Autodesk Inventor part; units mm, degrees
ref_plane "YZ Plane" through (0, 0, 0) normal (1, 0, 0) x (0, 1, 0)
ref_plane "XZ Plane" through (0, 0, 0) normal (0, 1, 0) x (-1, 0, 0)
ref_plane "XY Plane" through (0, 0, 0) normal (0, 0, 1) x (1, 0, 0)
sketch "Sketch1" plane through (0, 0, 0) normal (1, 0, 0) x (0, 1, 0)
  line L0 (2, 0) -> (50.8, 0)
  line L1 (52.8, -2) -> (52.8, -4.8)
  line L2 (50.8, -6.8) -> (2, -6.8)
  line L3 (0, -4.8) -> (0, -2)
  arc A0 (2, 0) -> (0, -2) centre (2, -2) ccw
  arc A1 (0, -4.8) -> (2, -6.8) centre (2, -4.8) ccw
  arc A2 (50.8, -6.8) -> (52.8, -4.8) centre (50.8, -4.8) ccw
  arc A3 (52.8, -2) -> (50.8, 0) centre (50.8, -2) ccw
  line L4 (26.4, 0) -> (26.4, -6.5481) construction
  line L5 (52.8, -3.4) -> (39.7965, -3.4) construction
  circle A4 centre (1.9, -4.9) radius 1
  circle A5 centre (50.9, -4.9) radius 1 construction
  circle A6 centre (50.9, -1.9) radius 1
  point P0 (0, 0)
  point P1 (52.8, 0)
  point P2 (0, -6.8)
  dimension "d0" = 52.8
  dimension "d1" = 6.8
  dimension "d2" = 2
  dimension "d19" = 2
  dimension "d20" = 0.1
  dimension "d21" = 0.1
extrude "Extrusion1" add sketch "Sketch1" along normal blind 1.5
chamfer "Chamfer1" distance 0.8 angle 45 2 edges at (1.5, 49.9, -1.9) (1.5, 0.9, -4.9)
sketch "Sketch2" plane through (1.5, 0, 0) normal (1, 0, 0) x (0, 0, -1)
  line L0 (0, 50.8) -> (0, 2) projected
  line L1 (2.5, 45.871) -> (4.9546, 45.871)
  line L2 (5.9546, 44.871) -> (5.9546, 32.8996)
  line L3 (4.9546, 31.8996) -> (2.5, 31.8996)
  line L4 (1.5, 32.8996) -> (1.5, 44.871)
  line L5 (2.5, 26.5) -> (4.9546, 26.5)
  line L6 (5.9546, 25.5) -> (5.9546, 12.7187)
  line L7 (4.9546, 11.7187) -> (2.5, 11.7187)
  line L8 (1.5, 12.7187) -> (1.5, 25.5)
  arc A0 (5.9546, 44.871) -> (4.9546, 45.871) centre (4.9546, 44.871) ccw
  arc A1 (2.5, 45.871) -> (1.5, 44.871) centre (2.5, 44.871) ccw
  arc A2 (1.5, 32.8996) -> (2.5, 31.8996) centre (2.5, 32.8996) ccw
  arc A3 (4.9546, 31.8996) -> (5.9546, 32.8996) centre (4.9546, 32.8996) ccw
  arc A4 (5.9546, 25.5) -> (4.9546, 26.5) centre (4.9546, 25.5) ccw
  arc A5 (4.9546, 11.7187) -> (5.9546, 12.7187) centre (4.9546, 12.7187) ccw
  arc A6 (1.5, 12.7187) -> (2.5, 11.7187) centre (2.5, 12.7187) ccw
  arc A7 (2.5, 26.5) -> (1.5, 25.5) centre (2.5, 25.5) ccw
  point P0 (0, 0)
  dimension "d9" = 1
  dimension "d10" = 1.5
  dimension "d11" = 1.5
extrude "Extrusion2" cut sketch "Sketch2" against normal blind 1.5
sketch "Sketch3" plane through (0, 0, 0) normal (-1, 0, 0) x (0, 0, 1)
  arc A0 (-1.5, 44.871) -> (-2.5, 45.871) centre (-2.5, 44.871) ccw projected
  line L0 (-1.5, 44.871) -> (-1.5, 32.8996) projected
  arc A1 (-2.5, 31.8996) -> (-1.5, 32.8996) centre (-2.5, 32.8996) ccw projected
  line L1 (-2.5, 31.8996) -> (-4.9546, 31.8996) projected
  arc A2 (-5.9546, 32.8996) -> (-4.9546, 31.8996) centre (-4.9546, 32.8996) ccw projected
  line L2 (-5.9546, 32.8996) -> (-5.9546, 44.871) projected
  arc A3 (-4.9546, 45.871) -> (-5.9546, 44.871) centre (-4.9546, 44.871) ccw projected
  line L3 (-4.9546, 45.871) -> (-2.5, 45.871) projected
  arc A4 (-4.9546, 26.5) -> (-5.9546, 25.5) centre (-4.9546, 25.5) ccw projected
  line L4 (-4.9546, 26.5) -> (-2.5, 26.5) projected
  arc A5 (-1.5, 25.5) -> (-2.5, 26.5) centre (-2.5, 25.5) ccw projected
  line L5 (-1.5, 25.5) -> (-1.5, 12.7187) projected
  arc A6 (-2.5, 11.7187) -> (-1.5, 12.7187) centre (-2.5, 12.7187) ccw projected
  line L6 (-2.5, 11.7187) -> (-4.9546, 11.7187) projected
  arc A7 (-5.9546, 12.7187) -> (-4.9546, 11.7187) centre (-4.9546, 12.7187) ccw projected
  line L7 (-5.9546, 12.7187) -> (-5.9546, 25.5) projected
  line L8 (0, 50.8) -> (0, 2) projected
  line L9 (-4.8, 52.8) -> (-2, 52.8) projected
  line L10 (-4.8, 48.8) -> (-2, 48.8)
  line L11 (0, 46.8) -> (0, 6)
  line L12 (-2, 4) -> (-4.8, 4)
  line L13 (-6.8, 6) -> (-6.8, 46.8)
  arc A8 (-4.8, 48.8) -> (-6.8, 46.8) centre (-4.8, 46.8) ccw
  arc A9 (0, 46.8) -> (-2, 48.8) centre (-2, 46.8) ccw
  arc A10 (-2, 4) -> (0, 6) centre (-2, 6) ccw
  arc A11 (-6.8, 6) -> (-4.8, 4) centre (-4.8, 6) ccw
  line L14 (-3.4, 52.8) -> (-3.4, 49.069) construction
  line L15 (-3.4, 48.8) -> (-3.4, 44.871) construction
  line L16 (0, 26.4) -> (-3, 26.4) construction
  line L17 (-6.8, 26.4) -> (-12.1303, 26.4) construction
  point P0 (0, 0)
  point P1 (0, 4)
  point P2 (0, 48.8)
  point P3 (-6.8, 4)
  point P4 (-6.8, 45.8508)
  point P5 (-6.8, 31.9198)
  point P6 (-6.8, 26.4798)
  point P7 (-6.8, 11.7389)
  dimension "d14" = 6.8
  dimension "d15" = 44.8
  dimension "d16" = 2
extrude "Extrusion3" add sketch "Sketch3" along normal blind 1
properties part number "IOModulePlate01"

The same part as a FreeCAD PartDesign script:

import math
import FreeCAD as App
import Part
import Sketcher
from FreeCAD import Vector


def edges_at(feature, points):
    """Names of the edges that pass closest to the given points."""
    edges = feature.Shape.Edges
    near = lambda p: min(range(len(edges)), key=lambda i: edges[i].distToShape(Part.Vertex(*p))[0])
    return sorted({f"Edge{near(p) + 1}" for p in points})

doc = App.newDocument("Part")
body = doc.addObject("PartDesign::Body", "Body")

# Sketch on YZ plane
sketch1 = doc.addObject("Sketcher::SketchObject", "Sketch")
body.addObject(sketch1)
sketch1.AttachmentSupport = (doc.YZ_Plane, [""])
sketch1.MapMode = "FlatFace"
sketch1.addGeometry(Part.LineSegment(Vector(50.8, 0, 0), Vector(2, 0, 0)), False)
sketch1.addGeometry(Part.ArcOfCircle(Part.Circle(Vector(2, -2, 0), Vector(0, 0, 1), 2), math.radians(90), math.radians(180)), False)
sketch1.addGeometry(Part.LineSegment(Vector(0, -2, 0), Vector(0, -4.8, 0)), False)
sketch1.addGeometry(Part.ArcOfCircle(Part.Circle(Vector(2, -4.8, 0), Vector(0, 0, 1), 2), math.radians(180), math.radians(270)), False)
sketch1.addGeometry(Part.LineSegment(Vector(2, -6.8, 0), Vector(50.8, -6.8, 0)), False)
sketch1.addGeometry(Part.ArcOfCircle(Part.Circle(Vector(50.8, -4.8, 0), Vector(0, 0, 1), 2), math.radians(-90), math.radians(0)), False)
sketch1.addGeometry(Part.LineSegment(Vector(52.8, -4.8, 0), Vector(52.8, -2, 0)), False)
sketch1.addGeometry(Part.ArcOfCircle(Part.Circle(Vector(50.8, -2, 0), Vector(0, 0, 1), 2), math.radians(0), math.radians(90)), False)
sketch1.addGeometry(Part.Circle(Vector(1.9, -4.9, 0), Vector(0, 0, 1), 1), False)
sketch1.addGeometry(Part.Circle(Vector(50.9, -1.9, 0), Vector(0, 0, 1), 1), False)
sketch1.addConstraint(Sketcher.Constraint("Tangent", 0, 2, 1, 1))
sketch1.addConstraint(Sketcher.Constraint("Tangent", 1, 2, 2, 1))
sketch1.addConstraint(Sketcher.Constraint("Tangent", 2, 2, 3, 1))
sketch1.addConstraint(Sketcher.Constraint("Tangent", 3, 2, 4, 1))
sketch1.addConstraint(Sketcher.Constraint("Tangent", 4, 2, 5, 1))
sketch1.addConstraint(Sketcher.Constraint("Tangent", 5, 2, 6, 1))
sketch1.addConstraint(Sketcher.Constraint("Tangent", 6, 2, 7, 1))
sketch1.addConstraint(Sketcher.Constraint("Tangent", 7, 2, 0, 1))
sketch1.addConstraint(Sketcher.Constraint("Horizontal", 0))
sketch1.addConstraint(Sketcher.Constraint("Vertical", 2))
sketch1.addConstraint(Sketcher.Constraint("Horizontal", 4))
sketch1.addConstraint(Sketcher.Constraint("Vertical", 6))
sketch1.addConstraint(Sketcher.Constraint("Equal", 1, 3))
sketch1.addConstraint(Sketcher.Constraint("Equal", 3, 5))
sketch1.addConstraint(Sketcher.Constraint("Equal", 5, 7))
sketch1.addConstraint(Sketcher.Constraint("Equal", 8, 9))
sketch1.addConstraint(Sketcher.Constraint("PointOnObject", 0, 2, -1))
sketch1.addConstraint(Sketcher.Constraint("PointOnObject", 1, 2, -2))
sketch1.addConstraint(Sketcher.Constraint("Diameter", 8, 2.0))
sketch1.addConstraint(Sketcher.Constraint("Radius", 1, 2.0))
sketch1.addConstraint(Sketcher.Constraint("DistanceY", 3, 2, -1, 1, 6.8))
sketch1.addConstraint(Sketcher.Constraint("DistanceX", -1, 1, 5, 2, 52.8))
sketch1.addConstraint(Sketcher.Constraint("DistanceX", 8, 3, 3, 3, 0.1))
sketch1.addConstraint(Sketcher.Constraint("DistanceY", 8, 3, 3, 3, 0.1))
sketch1.addConstraint(Sketcher.Constraint("DistanceX", 7, 3, 9, 3, 0.1))
sketch1.addConstraint(Sketcher.Constraint("DistanceY", 7, 3, 9, 3, 0.1))
pad1 = doc.addObject("PartDesign::Pad", "Pad")
body.addObject(pad1)
pad1.Profile = sketch1
pad1.Length = 1.5
doc.recompute()

chamfer = doc.addObject("PartDesign::Chamfer", "Chamfer")
body.addObject(chamfer)
chamfer.Base = (pad1, edges_at(pad1, [(1.5, 49.9, -1.9), (1.5, 0.9, -4.9)]))
chamfer.Size = 0.8

# Sketch on YZ plane
sketch2 = doc.addObject("Sketcher::SketchObject", "Sketch001")
body.addObject(sketch2)
sketch2.AttachmentSupport = (doc.YZ_Plane, [""])
sketch2.MapMode = "FlatFace"
sketch2.AttachmentOffset = App.Placement(Vector(0, 0, 1.5), App.Rotation())
sketch2.addGeometry(Part.LineSegment(Vector(45.9, -5, 0), Vector(45.9, -2.5, 0)), False)
sketch2.addGeometry(Part.ArcOfCircle(Part.Circle(Vector(44.9, -2.5, 0), Vector(0, 0, 1), 1), math.radians(0), math.radians(90)), False)
sketch2.addGeometry(Part.LineSegment(Vector(44.9, -1.5, 0), Vector(32.9, -1.5, 0)), False)
sketch2.addGeometry(Part.ArcOfCircle(Part.Circle(Vector(32.9, -2.5, 0), Vector(0, 0, 1), 1), math.radians(90), math.radians(180)), False)
sketch2.addGeometry(Part.LineSegment(Vector(31.9, -2.5, 0), Vector(31.9, -5, 0)), False)
sketch2.addGeometry(Part.ArcOfCircle(Part.Circle(Vector(32.9, -5, 0), Vector(0, 0, 1), 1), math.radians(180), math.radians(270)), False)
sketch2.addGeometry(Part.LineSegment(Vector(32.9, -6, 0), Vector(44.9, -6, 0)), False)
sketch2.addGeometry(Part.ArcOfCircle(Part.Circle(Vector(44.9, -5, 0), Vector(0, 0, 1), 1), math.radians(-90), math.radians(0)), False)
sketch2.addGeometry(Part.LineSegment(Vector(26.5, -5, 0), Vector(26.5, -2.5, 0)), False)
sketch2.addGeometry(Part.ArcOfCircle(Part.Circle(Vector(25.5, -2.5, 0), Vector(0, 0, 1), 1), math.radians(0), math.radians(90)), False)
sketch2.addGeometry(Part.LineSegment(Vector(25.5, -1.5, 0), Vector(12.7, -1.5, 0)), False)
sketch2.addGeometry(Part.ArcOfCircle(Part.Circle(Vector(12.7, -2.5, 0), Vector(0, 0, 1), 1), math.radians(90), math.radians(180)), False)
sketch2.addGeometry(Part.LineSegment(Vector(11.7, -2.5, 0), Vector(11.7, -5, 0)), False)
sketch2.addGeometry(Part.ArcOfCircle(Part.Circle(Vector(12.7, -5, 0), Vector(0, 0, 1), 1), math.radians(180), math.radians(270)), False)
sketch2.addGeometry(Part.LineSegment(Vector(12.7, -6, 0), Vector(25.5, -6, 0)), False)
sketch2.addGeometry(Part.ArcOfCircle(Part.Circle(Vector(25.5, -5, 0), Vector(0, 0, 1), 1), math.radians(-90), math.radians(0)), False)
sketch2.addConstraint(Sketcher.Constraint("Tangent", 0, 2, 1, 1))
sketch2.addConstraint(Sketcher.Constraint("Tangent", 1, 2, 2, 1))
sketch2.addConstraint(Sketcher.Constraint("Tangent", 2, 2, 3, 1))
sketch2.addConstraint(Sketcher.Constraint("Tangent", 3, 2, 4, 1))
sketch2.addConstraint(Sketcher.Constraint("Tangent", 4, 2, 5, 1))
sketch2.addConstraint(Sketcher.Constraint("Tangent", 5, 2, 6, 1))
sketch2.addConstraint(Sketcher.Constraint("Tangent", 6, 2, 7, 1))
sketch2.addConstraint(Sketcher.Constraint("Tangent", 7, 2, 0, 1))
sketch2.addConstraint(Sketcher.Constraint("Tangent", 8, 2, 9, 1))
sketch2.addConstraint(Sketcher.Constraint("Tangent", 9, 2, 10, 1))
sketch2.addConstraint(Sketcher.Constraint("Tangent", 10, 2, 11, 1))
sketch2.addConstraint(Sketcher.Constraint("Tangent", 11, 2, 12, 1))
sketch2.addConstraint(Sketcher.Constraint("Tangent", 12, 2, 13, 1))
sketch2.addConstraint(Sketcher.Constraint("Tangent", 13, 2, 14, 1))
sketch2.addConstraint(Sketcher.Constraint("Tangent", 14, 2, 15, 1))
sketch2.addConstraint(Sketcher.Constraint("Tangent", 15, 2, 8, 1))
sketch2.addConstraint(Sketcher.Constraint("Vertical", 0))
sketch2.addConstraint(Sketcher.Constraint("Horizontal", 2))
sketch2.addConstraint(Sketcher.Constraint("Vertical", 4))
sketch2.addConstraint(Sketcher.Constraint("Horizontal", 6))
sketch2.addConstraint(Sketcher.Constraint("Vertical", 8))
sketch2.addConstraint(Sketcher.Constraint("Horizontal", 10))
sketch2.addConstraint(Sketcher.Constraint("Vertical", 12))
sketch2.addConstraint(Sketcher.Constraint("Horizontal", 14))
sketch2.addConstraint(Sketcher.Constraint("Equal", 1, 3))
sketch2.addConstraint(Sketcher.Constraint("Equal", 3, 5))
sketch2.addConstraint(Sketcher.Constraint("Equal", 5, 7))
sketch2.addConstraint(Sketcher.Constraint("Equal", 7, 9))
sketch2.addConstraint(Sketcher.Constraint("Equal", 9, 11))
sketch2.addConstraint(Sketcher.Constraint("Equal", 11, 13))
sketch2.addConstraint(Sketcher.Constraint("Equal", 13, 15))
sketch2.addConstraint(Sketcher.Constraint("Horizontal", 3, 3, 9, 3))
sketch2.addConstraint(Sketcher.Constraint("Horizontal", 7, 3, 13, 3))
sketch2.addConstraint(Sketcher.Constraint("Radius", 1, 1.0))
sketch2.addConstraint(Sketcher.Constraint("DistanceY", 1, 2, -1, 1, 1.5))
sketch2.addConstraint(Sketcher.Constraint("DistanceX", -1, 1, 9, 3, 25.5))
sketch2.addConstraint(Sketcher.Constraint("DistanceX", 2, 2, 2, 1, 11.9714))
sketch2.addConstraint(Sketcher.Constraint("DistanceX", 10, 2, 10, 1, 12.7813))
sketch2.addConstraint(Sketcher.Constraint("DistanceY", 0, 1, 0, 2, 2.4546))
sketch2.addConstraint(Sketcher.Constraint("DistanceX", -1, 1, 1, 3, 44.871))
pocket1 = doc.addObject("PartDesign::Pocket", "Pocket")
body.addObject(pocket1)
pocket1.Profile = sketch2
pocket1.Length = 1.5

# Sketch on YZ plane
sketch3 = doc.addObject("Sketcher::SketchObject", "Sketch002")
body.addObject(sketch3)
sketch3.AttachmentSupport = (doc.YZ_Plane, [""])
sketch3.MapMode = "FlatFace"
sketch3.addGeometry(Part.LineSegment(Vector(6, 0, 0), Vector(46.8, 0, 0)), False)
sketch3.addGeometry(Part.ArcOfCircle(Part.Circle(Vector(46.8, -2, 0), Vector(0, 0, 1), 2), math.radians(0), math.radians(90)), False)
sketch3.addGeometry(Part.LineSegment(Vector(48.8, -2, 0), Vector(48.8, -4.8, 0)), False)
sketch3.addGeometry(Part.ArcOfCircle(Part.Circle(Vector(46.8, -4.8, 0), Vector(0, 0, 1), 2), math.radians(-90), math.radians(0)), False)
sketch3.addGeometry(Part.LineSegment(Vector(46.8, -6.8, 0), Vector(6, -6.8, 0)), False)
sketch3.addGeometry(Part.ArcOfCircle(Part.Circle(Vector(6, -4.8, 0), Vector(0, 0, 1), 2), math.radians(180), math.radians(270)), False)
sketch3.addGeometry(Part.LineSegment(Vector(4, -4.8, 0), Vector(4, -2, 0)), False)
sketch3.addGeometry(Part.ArcOfCircle(Part.Circle(Vector(6, -2, 0), Vector(0, 0, 1), 2), math.radians(90), math.radians(180)), False)
sketch3.addGeometry(Part.ArcOfCircle(Part.Circle(Vector(25.5, -5, 0), Vector(0, 0, 1), 1), math.radians(-90), math.radians(0)), False)
sketch3.addGeometry(Part.LineSegment(Vector(26.5, -5, 0), Vector(26.5, -2.5, 0)), False)
sketch3.addGeometry(Part.ArcOfCircle(Part.Circle(Vector(25.5, -2.5, 0), Vector(0, 0, 1), 1), math.radians(0), math.radians(90)), False)
sketch3.addGeometry(Part.LineSegment(Vector(25.5, -1.5, 0), Vector(12.7, -1.5, 0)), False)
sketch3.addGeometry(Part.ArcOfCircle(Part.Circle(Vector(12.7, -2.5, 0), Vector(0, 0, 1), 1), math.radians(90), math.radians(180)), False)
sketch3.addGeometry(Part.LineSegment(Vector(11.7, -2.5, 0), Vector(11.7, -5, 0)), False)
sketch3.addGeometry(Part.ArcOfCircle(Part.Circle(Vector(12.7, -5, 0), Vector(0, 0, 1), 1), math.radians(180), math.radians(270)), False)
sketch3.addGeometry(Part.LineSegment(Vector(12.7, -6, 0), Vector(25.5, -6, 0)), False)
sketch3.addGeometry(Part.ArcOfCircle(Part.Circle(Vector(44.9, -2.5, 0), Vector(0, 0, 1), 1), math.radians(0), math.radians(90)), False)
sketch3.addGeometry(Part.LineSegment(Vector(44.9, -1.5, 0), Vector(32.9, -1.5, 0)), False)
sketch3.addGeometry(Part.ArcOfCircle(Part.Circle(Vector(32.9, -2.5, 0), Vector(0, 0, 1), 1), math.radians(90), math.radians(180)), False)
sketch3.addGeometry(Part.LineSegment(Vector(31.9, -2.5, 0), Vector(31.9, -5, 0)), False)
sketch3.addGeometry(Part.ArcOfCircle(Part.Circle(Vector(32.9, -5, 0), Vector(0, 0, 1), 1), math.radians(180), math.radians(270)), False)
sketch3.addGeometry(Part.LineSegment(Vector(32.9, -6, 0), Vector(44.9, -6, 0)), False)
sketch3.addGeometry(Part.ArcOfCircle(Part.Circle(Vector(44.9, -5, 0), Vector(0, 0, 1), 1), math.radians(-90), math.radians(0)), False)
sketch3.addGeometry(Part.LineSegment(Vector(45.9, -5, 0), Vector(45.9, -2.5, 0)), False)
sketch3.addConstraint(Sketcher.Constraint("Tangent", 0, 2, 1, 2))
sketch3.addConstraint(Sketcher.Constraint("Tangent", 1, 1, 2, 1))
sketch3.addConstraint(Sketcher.Constraint("Tangent", 2, 2, 3, 2))
sketch3.addConstraint(Sketcher.Constraint("Tangent", 3, 1, 4, 1))
sketch3.addConstraint(Sketcher.Constraint("Tangent", 4, 2, 5, 2))
sketch3.addConstraint(Sketcher.Constraint("Tangent", 5, 1, 6, 1))
sketch3.addConstraint(Sketcher.Constraint("Tangent", 6, 2, 7, 2))
sketch3.addConstraint(Sketcher.Constraint("Tangent", 7, 1, 0, 1))
sketch3.addConstraint(Sketcher.Constraint("Tangent", 8, 2, 9, 1))
sketch3.addConstraint(Sketcher.Constraint("Tangent", 9, 2, 10, 1))
sketch3.addConstraint(Sketcher.Constraint("Tangent", 10, 2, 11, 1))
sketch3.addConstraint(Sketcher.Constraint("Tangent", 11, 2, 12, 1))
sketch3.addConstraint(Sketcher.Constraint("Tangent", 12, 2, 13, 1))
sketch3.addConstraint(Sketcher.Constraint("Tangent", 13, 2, 14, 1))
sketch3.addConstraint(Sketcher.Constraint("Tangent", 14, 2, 15, 1))
sketch3.addConstraint(Sketcher.Constraint("Tangent", 15, 2, 8, 1))
sketch3.addConstraint(Sketcher.Constraint("Tangent", 16, 2, 17, 1))
sketch3.addConstraint(Sketcher.Constraint("Tangent", 17, 2, 18, 1))
sketch3.addConstraint(Sketcher.Constraint("Tangent", 18, 2, 19, 1))
sketch3.addConstraint(Sketcher.Constraint("Tangent", 19, 2, 20, 1))
sketch3.addConstraint(Sketcher.Constraint("Tangent", 20, 2, 21, 1))
sketch3.addConstraint(Sketcher.Constraint("Tangent", 21, 2, 22, 1))
sketch3.addConstraint(Sketcher.Constraint("Tangent", 22, 2, 23, 1))
sketch3.addConstraint(Sketcher.Constraint("Tangent", 23, 2, 16, 1))
sketch3.addConstraint(Sketcher.Constraint("Horizontal", 0))
sketch3.addConstraint(Sketcher.Constraint("Vertical", 2))
sketch3.addConstraint(Sketcher.Constraint("Horizontal", 4))
sketch3.addConstraint(Sketcher.Constraint("Vertical", 6))
sketch3.addConstraint(Sketcher.Constraint("Vertical", 9))
sketch3.addConstraint(Sketcher.Constraint("Horizontal", 11))
sketch3.addConstraint(Sketcher.Constraint("Vertical", 13))
sketch3.addConstraint(Sketcher.Constraint("Horizontal", 15))
sketch3.addConstraint(Sketcher.Constraint("Horizontal", 17))
sketch3.addConstraint(Sketcher.Constraint("Vertical", 19))
sketch3.addConstraint(Sketcher.Constraint("Horizontal", 21))
sketch3.addConstraint(Sketcher.Constraint("Vertical", 23))
sketch3.addConstraint(Sketcher.Constraint("Equal", 1, 3))
sketch3.addConstraint(Sketcher.Constraint("Equal", 3, 5))
sketch3.addConstraint(Sketcher.Constraint("Equal", 5, 7))
sketch3.addConstraint(Sketcher.Constraint("Equal", 8, 10))
sketch3.addConstraint(Sketcher.Constraint("Equal", 10, 12))
sketch3.addConstraint(Sketcher.Constraint("Equal", 12, 14))
sketch3.addConstraint(Sketcher.Constraint("Equal", 14, 16))
sketch3.addConstraint(Sketcher.Constraint("Equal", 16, 18))
sketch3.addConstraint(Sketcher.Constraint("Equal", 18, 20))
sketch3.addConstraint(Sketcher.Constraint("Equal", 20, 22))
sketch3.addConstraint(Sketcher.Constraint("PointOnObject", 0, 2, -1))
sketch3.addConstraint(Sketcher.Constraint("Horizontal", 12, 3, 16, 3))
sketch3.addConstraint(Sketcher.Constraint("Horizontal", 14, 3, 20, 3))
sketch3.addConstraint(Sketcher.Constraint("Radius", 1, 2.0))
sketch3.addConstraint(Sketcher.Constraint("Radius", 8, 1.0))
sketch3.addConstraint(Sketcher.Constraint("DistanceY", 3, 1, -1, 1, 6.8))
sketch3.addConstraint(Sketcher.Constraint("DistanceX", 0, 1, 0, 2, 40.8))
sketch3.addConstraint(Sketcher.Constraint("DistanceX", -1, 1, 5, 3, 6.0))
sketch3.addConstraint(Sketcher.Constraint("DistanceX", -1, 1, 8, 3, 25.5))
sketch3.addConstraint(Sketcher.Constraint("DistanceY", 10, 3, -1, 1, 2.5))
sketch3.addConstraint(Sketcher.Constraint("DistanceX", 11, 2, 11, 1, 12.7813))
sketch3.addConstraint(Sketcher.Constraint("DistanceX", 17, 2, 17, 1, 11.9714))
sketch3.addConstraint(Sketcher.Constraint("DistanceY", 9, 1, 9, 2, 2.4546))
sketch3.addConstraint(Sketcher.Constraint("DistanceX", -1, 1, 16, 3, 44.871))
pad2 = doc.addObject("PartDesign::Pad", "Pad001")
body.addObject(pad2)
pad2.Profile = sketch3
pad2.Length = 1
pad2.Reversed = True

doc.recompute()
